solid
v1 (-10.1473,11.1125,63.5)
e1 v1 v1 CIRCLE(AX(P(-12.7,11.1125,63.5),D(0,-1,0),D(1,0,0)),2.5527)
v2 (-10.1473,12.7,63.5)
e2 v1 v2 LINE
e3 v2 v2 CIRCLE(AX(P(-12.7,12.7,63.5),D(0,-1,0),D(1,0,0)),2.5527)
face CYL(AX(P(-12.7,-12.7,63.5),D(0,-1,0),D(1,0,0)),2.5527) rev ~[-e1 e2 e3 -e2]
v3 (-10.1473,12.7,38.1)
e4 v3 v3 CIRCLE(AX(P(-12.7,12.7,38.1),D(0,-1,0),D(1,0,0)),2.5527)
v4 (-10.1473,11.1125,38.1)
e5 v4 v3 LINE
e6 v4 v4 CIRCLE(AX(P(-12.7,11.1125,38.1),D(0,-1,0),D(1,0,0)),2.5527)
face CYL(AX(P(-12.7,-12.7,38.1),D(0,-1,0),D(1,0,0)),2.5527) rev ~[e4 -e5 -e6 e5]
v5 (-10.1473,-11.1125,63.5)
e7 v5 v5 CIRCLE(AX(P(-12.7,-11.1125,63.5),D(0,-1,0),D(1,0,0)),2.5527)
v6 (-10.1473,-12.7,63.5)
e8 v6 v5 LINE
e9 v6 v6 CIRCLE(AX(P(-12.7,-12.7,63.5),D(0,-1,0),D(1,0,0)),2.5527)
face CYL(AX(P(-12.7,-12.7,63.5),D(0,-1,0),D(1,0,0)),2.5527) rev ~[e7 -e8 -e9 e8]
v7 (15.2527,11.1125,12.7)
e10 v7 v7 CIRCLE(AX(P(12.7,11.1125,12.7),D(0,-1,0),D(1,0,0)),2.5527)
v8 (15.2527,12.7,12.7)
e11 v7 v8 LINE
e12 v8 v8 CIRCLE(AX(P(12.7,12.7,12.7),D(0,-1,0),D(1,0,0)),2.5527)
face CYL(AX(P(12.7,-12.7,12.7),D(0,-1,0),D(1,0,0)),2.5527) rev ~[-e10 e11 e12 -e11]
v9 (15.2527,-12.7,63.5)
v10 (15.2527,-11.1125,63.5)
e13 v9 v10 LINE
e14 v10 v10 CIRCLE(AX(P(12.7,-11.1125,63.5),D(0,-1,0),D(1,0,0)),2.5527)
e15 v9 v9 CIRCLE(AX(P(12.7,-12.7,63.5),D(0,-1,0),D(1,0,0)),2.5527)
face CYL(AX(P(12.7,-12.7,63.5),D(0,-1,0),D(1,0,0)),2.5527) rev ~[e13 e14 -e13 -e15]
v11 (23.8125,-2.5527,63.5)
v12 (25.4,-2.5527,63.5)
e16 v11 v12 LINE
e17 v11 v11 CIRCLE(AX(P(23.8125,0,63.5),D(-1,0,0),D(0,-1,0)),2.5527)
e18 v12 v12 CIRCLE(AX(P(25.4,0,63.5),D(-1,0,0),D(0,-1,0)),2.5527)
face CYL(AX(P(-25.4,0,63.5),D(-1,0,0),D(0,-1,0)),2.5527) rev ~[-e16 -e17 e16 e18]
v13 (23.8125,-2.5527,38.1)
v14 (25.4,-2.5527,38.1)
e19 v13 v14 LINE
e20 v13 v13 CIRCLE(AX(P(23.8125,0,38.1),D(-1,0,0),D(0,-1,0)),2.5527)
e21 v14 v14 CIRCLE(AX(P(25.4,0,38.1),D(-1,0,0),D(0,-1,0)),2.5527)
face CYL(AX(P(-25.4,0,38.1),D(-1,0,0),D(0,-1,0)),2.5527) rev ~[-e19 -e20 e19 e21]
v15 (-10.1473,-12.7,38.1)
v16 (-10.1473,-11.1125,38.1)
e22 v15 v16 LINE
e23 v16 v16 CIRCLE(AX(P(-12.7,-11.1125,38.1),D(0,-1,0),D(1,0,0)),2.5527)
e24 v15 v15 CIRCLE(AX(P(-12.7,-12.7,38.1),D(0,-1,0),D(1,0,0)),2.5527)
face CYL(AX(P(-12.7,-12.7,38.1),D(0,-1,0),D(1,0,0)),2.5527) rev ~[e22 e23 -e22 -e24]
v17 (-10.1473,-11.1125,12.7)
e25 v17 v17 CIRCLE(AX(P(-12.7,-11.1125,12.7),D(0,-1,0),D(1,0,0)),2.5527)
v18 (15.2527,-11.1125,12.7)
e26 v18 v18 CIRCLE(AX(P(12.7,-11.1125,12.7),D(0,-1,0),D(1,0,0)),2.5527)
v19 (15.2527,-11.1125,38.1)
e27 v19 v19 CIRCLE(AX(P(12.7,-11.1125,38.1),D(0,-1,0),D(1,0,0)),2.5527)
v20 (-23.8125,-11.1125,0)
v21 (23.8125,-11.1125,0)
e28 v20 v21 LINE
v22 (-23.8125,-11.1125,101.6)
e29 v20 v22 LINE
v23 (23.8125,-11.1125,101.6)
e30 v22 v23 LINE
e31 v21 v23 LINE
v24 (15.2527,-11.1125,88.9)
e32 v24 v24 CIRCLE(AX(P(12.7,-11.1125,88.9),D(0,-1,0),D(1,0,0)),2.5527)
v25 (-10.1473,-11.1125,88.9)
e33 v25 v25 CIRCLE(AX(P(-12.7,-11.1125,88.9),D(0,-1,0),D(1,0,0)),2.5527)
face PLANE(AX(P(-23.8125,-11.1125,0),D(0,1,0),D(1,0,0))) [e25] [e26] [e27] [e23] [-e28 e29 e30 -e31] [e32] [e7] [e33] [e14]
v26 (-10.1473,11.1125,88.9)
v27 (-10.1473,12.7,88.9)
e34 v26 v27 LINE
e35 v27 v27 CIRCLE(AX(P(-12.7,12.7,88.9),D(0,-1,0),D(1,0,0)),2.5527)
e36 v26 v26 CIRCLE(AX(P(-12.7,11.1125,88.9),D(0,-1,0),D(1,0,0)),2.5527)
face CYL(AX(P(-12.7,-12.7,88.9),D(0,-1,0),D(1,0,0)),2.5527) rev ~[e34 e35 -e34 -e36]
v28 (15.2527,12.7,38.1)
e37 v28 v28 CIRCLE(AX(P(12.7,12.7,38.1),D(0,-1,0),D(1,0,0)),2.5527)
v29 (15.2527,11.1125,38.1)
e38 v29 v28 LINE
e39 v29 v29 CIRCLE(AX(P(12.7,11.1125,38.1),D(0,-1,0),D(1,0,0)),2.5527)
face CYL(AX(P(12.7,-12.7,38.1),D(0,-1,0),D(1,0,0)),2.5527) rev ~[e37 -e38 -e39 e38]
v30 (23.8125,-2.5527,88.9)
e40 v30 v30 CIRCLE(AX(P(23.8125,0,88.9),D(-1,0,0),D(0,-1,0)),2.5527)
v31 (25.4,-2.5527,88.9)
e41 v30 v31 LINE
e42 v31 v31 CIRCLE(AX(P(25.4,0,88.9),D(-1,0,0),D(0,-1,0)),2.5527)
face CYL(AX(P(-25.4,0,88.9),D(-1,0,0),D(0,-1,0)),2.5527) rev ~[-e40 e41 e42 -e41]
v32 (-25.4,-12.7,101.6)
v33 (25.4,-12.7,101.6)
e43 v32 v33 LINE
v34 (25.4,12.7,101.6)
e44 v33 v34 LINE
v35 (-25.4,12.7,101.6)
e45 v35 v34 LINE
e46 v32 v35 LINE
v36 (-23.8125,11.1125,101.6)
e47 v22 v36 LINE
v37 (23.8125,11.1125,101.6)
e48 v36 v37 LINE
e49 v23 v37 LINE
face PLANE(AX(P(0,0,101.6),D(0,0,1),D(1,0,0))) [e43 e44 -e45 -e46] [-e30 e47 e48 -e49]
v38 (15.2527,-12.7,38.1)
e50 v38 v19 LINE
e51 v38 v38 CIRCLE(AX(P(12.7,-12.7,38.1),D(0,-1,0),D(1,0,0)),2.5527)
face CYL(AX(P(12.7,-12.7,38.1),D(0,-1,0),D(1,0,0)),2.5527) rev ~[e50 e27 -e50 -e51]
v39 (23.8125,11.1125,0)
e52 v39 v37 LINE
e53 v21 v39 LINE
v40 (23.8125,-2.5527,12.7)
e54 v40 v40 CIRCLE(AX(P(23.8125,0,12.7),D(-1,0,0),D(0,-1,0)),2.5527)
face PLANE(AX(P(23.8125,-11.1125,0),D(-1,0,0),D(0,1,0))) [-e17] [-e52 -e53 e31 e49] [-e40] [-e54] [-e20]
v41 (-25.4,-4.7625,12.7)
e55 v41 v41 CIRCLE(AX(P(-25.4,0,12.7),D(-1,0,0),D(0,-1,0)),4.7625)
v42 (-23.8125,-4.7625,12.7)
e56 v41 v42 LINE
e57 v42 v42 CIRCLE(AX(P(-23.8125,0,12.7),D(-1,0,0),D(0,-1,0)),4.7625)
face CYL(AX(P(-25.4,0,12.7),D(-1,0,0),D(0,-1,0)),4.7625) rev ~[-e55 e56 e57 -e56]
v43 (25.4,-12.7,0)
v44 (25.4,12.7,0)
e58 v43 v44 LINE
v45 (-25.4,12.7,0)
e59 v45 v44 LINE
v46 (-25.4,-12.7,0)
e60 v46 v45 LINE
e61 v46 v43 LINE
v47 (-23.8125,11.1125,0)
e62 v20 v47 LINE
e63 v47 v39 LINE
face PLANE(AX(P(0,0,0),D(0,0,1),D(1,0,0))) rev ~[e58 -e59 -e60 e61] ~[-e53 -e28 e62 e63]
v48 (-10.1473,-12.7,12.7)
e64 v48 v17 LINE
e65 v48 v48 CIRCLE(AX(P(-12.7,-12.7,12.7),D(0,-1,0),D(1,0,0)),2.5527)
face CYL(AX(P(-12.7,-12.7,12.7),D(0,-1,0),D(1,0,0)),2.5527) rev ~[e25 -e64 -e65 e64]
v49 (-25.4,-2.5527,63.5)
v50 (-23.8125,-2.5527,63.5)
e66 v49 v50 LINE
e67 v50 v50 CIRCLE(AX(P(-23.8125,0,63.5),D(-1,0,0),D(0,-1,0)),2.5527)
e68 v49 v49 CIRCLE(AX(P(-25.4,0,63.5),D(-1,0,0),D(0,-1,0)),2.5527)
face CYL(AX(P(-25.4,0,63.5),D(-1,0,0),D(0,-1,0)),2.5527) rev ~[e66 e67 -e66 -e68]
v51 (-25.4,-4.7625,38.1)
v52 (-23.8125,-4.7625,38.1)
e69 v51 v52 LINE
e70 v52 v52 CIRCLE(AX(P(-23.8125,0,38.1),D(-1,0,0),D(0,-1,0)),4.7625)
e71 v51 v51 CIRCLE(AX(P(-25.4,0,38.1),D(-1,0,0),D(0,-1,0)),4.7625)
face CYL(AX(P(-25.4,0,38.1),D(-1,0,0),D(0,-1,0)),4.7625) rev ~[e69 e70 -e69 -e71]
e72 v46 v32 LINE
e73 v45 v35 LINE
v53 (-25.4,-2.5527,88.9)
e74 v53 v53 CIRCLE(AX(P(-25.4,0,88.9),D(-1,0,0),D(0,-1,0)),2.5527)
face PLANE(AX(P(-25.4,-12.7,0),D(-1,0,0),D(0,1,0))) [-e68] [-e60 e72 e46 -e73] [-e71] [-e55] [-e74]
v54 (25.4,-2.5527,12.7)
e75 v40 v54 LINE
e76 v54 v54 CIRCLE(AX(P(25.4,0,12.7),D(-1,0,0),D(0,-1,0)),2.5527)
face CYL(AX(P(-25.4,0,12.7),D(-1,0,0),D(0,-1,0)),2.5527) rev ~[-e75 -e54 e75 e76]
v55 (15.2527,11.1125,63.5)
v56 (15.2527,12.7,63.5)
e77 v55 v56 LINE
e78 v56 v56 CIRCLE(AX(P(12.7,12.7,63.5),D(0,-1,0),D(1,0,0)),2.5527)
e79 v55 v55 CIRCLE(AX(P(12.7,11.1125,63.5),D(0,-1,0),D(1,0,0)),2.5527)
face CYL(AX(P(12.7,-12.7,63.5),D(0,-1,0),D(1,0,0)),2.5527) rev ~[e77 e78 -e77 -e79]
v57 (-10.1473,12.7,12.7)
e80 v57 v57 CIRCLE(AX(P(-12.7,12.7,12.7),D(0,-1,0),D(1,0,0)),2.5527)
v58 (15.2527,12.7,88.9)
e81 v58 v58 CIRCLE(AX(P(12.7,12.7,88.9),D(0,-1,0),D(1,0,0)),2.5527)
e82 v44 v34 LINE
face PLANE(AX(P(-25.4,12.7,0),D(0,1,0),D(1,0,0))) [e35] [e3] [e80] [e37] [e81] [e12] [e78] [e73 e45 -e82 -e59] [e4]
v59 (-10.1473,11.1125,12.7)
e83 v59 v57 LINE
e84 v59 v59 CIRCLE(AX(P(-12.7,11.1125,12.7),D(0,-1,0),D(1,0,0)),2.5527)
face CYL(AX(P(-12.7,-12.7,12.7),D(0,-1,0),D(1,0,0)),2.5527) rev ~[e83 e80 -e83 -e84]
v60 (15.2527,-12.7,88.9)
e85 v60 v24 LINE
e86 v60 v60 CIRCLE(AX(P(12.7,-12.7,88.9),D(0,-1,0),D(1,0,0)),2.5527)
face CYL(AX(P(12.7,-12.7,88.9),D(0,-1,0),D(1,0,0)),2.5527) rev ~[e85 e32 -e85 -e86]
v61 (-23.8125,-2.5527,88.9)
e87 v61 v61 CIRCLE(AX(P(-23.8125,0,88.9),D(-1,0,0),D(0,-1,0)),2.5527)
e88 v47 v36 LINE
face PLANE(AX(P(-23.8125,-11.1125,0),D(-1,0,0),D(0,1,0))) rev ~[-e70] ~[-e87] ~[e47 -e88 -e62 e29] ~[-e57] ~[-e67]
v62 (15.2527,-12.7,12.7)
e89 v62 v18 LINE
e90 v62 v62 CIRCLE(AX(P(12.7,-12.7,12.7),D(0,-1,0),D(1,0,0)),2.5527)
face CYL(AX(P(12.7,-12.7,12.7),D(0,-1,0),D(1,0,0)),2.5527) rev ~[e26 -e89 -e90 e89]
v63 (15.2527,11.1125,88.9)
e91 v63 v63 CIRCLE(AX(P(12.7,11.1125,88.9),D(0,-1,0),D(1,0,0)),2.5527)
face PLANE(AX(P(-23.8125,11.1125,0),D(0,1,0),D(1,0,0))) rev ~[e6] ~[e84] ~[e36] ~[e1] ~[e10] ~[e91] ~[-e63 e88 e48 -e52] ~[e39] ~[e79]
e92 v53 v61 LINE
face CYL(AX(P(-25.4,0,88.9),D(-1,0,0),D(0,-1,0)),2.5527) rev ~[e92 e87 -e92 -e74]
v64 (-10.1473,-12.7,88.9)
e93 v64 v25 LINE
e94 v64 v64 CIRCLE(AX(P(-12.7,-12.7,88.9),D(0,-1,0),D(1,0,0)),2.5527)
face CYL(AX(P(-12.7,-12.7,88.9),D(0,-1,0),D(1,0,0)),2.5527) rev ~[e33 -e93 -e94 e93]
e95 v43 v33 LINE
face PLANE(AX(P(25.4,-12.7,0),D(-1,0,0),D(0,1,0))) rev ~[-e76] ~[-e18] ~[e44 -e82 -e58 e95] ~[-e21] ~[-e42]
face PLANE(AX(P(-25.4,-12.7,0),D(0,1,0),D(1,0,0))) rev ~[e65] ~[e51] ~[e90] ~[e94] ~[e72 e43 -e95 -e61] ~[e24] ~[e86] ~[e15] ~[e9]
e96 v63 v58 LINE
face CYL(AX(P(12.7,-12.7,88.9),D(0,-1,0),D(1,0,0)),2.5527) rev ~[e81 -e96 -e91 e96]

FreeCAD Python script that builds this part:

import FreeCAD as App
import Part
import Sketcher

V = App.Vector
Q = App.Units.Quantity


def add_polygon(sketch, points):
    """Adds a closed chain of lines whose ends are joined by coincident constraints."""
    first, n = sketch.GeometryCount, len(points)
    for a, b in zip(points, points[1:] + points[:1]):
        sketch.addGeometry(Part.LineSegment(App.Vector(*a, 0), App.Vector(*b, 0)), False)
    for i in range(n):
        sketch.addConstraint(Sketcher.Constraint("Coincident", first + i, 2, first + (i + 1) % n, 1))

doc = App.newDocument("Part")
body = doc.addObject("PartDesign::Body", "Body")

# Sketch on XY plane
sketch1 = body.newObject("Sketcher::SketchObject", "Sketch")
sketch1.AttachmentSupport = (doc.getObject("XY_Plane"), [""])
sketch1.MapMode = "FlatFace"
add_polygon(sketch1, [(-25, 13), (-25, -13), (25, -13), (25, 13)])  # lines 0-3
add_polygon(sketch1, [(24, -11), (-24, -11), (-24, 11), (24, 11)])  # lines 4-7
sketch1.addConstraint([
    Sketcher.Constraint("Vertical", 0),
    Sketcher.Constraint("Horizontal", 1),
    Sketcher.Constraint("Vertical", 2),
    Sketcher.Constraint("Horizontal", 3),
    Sketcher.Constraint("Horizontal", 4),
    Sketcher.Constraint("Vertical", 5),
    Sketcher.Constraint("Horizontal", 6),
    Sketcher.Constraint("Vertical", 7),
    Sketcher.Constraint("Symmetric", 0, 2, 2, 2, -1, 1),
    Sketcher.Constraint("Symmetric", 4, 2, 6, 2, -1, 1),
    Sketcher.Constraint("DistanceX", 1, 1, 1, 2, Q("2 in")),
    Sketcher.Constraint("DistanceY", 0, 2, 0, 1, Q("1 in")),
    Sketcher.Constraint("DistanceX", 4, 2, 4, 1, Q("1.875 in")),
    Sketcher.Constraint("DistanceY", 5, 1, 5, 2, Q("0.875 in")),
])
pad1 = body.newObject("PartDesign::Pad", "Pad")
pad1.Profile = sketch1
pad1.Length = Q("4 in")

# Sketch on XZ plane
sketch2 = body.newObject("Sketcher::SketchObject", "Sketch001")
sketch2.AttachmentSupport = (doc.getObject("XZ_Plane"), [""])
sketch2.MapMode = "FlatFace"
sketch2.AttachmentOffset = App.Placement(V(0, 0, 0.5 * 25.4), App.Rotation())
sketch2.addGeometry([
    Part.Circle(V(-12.7, 12.7, 0), V(0, 0, 1), 2.6),  # 0
    Part.Circle(V(-12.7, 38.1, 0), V(0, 0, 1), 2.6),  # 1
    Part.Circle(V(-12.7, 63.5, 0), V(0, 0, 1), 2.6),  # 2
    Part.Circle(V(-12.7, 88.9, 0), V(0, 0, 1), 2.6),  # 3
    Part.Circle(V(12.7, 12.7, 0), V(0, 0, 1), 2.6),  # 4
    Part.Circle(V(12.7, 38.1, 0), V(0, 0, 1), 2.6),  # 5
    Part.Circle(V(12.7, 63.5, 0), V(0, 0, 1), 2.6),  # 6
    Part.Circle(V(12.7, 88.9, 0), V(0, 0, 1), 2.6),  # 7
], False)
sketch2.addConstraint([
    Sketcher.Constraint("Equal", 0, 1),
    Sketcher.Constraint("Equal", 1, 2),
    Sketcher.Constraint("Equal", 2, 3),
    Sketcher.Constraint("Equal", 3, 4),
    Sketcher.Constraint("Equal", 4, 5),
    Sketcher.Constraint("Equal", 5, 6),
    Sketcher.Constraint("Equal", 6, 7),
    Sketcher.Constraint("Symmetric", 0, 3, 4, 3, -2),
    Sketcher.Constraint("Symmetric", 1, 3, 5, 3, -2),
    Sketcher.Constraint("Symmetric", 2, 3, 6, 3, -2),
    Sketcher.Constraint("Symmetric", 3, 3, 7, 3, -2),
    Sketcher.Constraint("Vertical", 0, 3, 1, 3),
    Sketcher.Constraint("Vertical", 1, 3, 2, 3),
    Sketcher.Constraint("Vertical", 2, 3, 3, 3),
    Sketcher.Constraint("Diameter", 0, Q("0.201 in")),
    Sketcher.Constraint("DistanceY", 0, 3, 1, 3, Q("1 in")),
    Sketcher.Constraint("DistanceY", 1, 3, 2, 3, Q("1 in")),
    Sketcher.Constraint("DistanceY", 2, 3, 3, 3, Q("1 in")),
    Sketcher.Constraint("DistanceX", 0, 3, 4, 3, Q("1 in")),
    Sketcher.Constraint("DistanceY", -1, 1, 0, 3, Q("0.5 in")),
])
pocket1 = body.newObject("PartDesign::Pocket", "Pocket")
pocket1.Profile = sketch2
pocket1.Length = Q("1 in")

# Sketch on YZ plane
sketch3 = body.newObject("Sketcher::SketchObject", "Sketch002")
sketch3.AttachmentSupport = (doc.getObject("YZ_Plane"), [""])
sketch3.MapMode = "FlatFace"
sketch3.AttachmentOffset = App.Placement(V(0, 0, -1 * 25.4), App.Rotation())
sketch3.addGeometry([
    Part.Circle(V(0, 88.9, 0), V(0, 0, 1), 2.6),
    Part.Circle(V(0, 63.5, 0), V(0, 0, 1), 2.6),
    Part.Circle(V(0, 38.1, 0), V(0, 0, 1), 2.6),
    Part.Circle(V(0, 12.7, 0), V(0, 0, 1), 2.6),
], False)
sketch3.addConstraint([
    Sketcher.Constraint("Equal", 0, 1),
    Sketcher.Constraint("Equal", 1, 2),
    Sketcher.Constraint("Equal", 2, 3),
    Sketcher.Constraint("PointOnObject", 0, 3, -2),
    Sketcher.Constraint("PointOnObject", 1, 3, -2),
    Sketcher.Constraint("PointOnObject", 2, 3, -2),
    Sketcher.Constraint("PointOnObject", 3, 3, -2),
    Sketcher.Constraint("Diameter", 0, Q("0.201 in")),
    Sketcher.Constraint("DistanceY", 1, 3, 0, 3, Q("1 in")),
    Sketcher.Constraint("DistanceY", 2, 3, 1, 3, Q("1 in")),
    Sketcher.Constraint("DistanceY", 3, 3, 2, 3, Q("1 in")),
    Sketcher.Constraint("DistanceY", -1, 1, 0, 3, Q("3.5 in")),
])
pocket2 = body.newObject("PartDesign::Pocket", "Pocket001")
pocket2.Profile = sketch3
pocket2.Type = "ThroughAll"
pocket2.Reversed = True

# Sketch on YZ plane
sketch4 = body.newObject("Sketcher::SketchObject", "Sketch003")
sketch4.AttachmentSupport = (doc.getObject("YZ_Plane"), [""])
sketch4.MapMode = "FlatFace"
sketch4.AttachmentOffset = App.Placement(V(0, 0, -1 * 25.4), App.Rotation())
sketch4.addGeometry([
    Part.Circle(V(0, 12.7, 0), V(0, 0, 1), 4.8),
    Part.Circle(V(0, 38.1, 0), V(0, 0, 1), 4.8),
], False)
sketch4.addConstraint([
    Sketcher.Constraint("Equal", 0, 1),
    Sketcher.Constraint("PointOnObject", 0, 3, -2),
    Sketcher.Constraint("PointOnObject", 1, 3, -2),
    Sketcher.Constraint("Diameter", 0, Q("0.375 in")),
    Sketcher.Constraint("DistanceY", 0, 3, 1, 3, Q("1 in")),
    Sketcher.Constraint("DistanceY", -1, 1, 0, 3, Q("0.5 in")),
])
pocket3 = body.newObject("PartDesign::Pocket", "Pocket002")
pocket3.Profile = sketch4
pocket3.Length = Q("0.125 in")
pocket3.Reversed = True

doc.recompute()
